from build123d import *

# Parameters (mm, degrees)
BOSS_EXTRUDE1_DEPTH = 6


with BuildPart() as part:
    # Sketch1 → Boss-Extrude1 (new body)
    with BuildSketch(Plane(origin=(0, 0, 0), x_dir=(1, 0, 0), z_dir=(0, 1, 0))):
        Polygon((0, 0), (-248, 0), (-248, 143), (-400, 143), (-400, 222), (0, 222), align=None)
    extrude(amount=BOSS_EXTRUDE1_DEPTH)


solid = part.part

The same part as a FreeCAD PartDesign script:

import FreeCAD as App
import Part
import Sketcher

doc = App.newDocument("Part")
body = doc.addObject("PartDesign::Body", "Body")

# Sketch on XZ plane
sketch1 = body.newObject("Sketcher::SketchObject", "Sketch")
sketch1.AttachmentSupport = (doc.getObject("XZ_Plane"), [""])
sketch1.MapMode = "FlatFace"
sketch1.addGeometry([
    Part.LineSegment(App.Vector(-248, 0, 0), App.Vector(0, 0, 0)),  # 0
    Part.LineSegment(App.Vector(0, 0, 0), App.Vector(0, -222, 0)),  # 1
    Part.LineSegment(App.Vector(0, -222, 0), App.Vector(-400, -222, 0)),  # 2
    Part.LineSegment(App.Vector(-400, -222, 0), App.Vector(-400, -143, 0)),  # 3
    Part.LineSegment(App.Vector(-400, -143, 0), App.Vector(-248, -143, 0)),  # 4
    Part.LineSegment(App.Vector(-248, -143, 0), App.Vector(-248, 0, 0)),  # 5
], False)
sketch1.addConstraint([
    Sketcher.Constraint("Coincident", 0, 2, 1, 1),
    Sketcher.Constraint("Coincident", 1, 2, 2, 1),
    Sketcher.Constraint("Coincident", 2, 2, 3, 1),
    Sketcher.Constraint("Coincident", 3, 2, 4, 1),
    Sketcher.Constraint("Coincident", 4, 2, 5, 1),
    Sketcher.Constraint("Coincident", 5, 2, 0, 1),
    Sketcher.Constraint("Horizontal", 0),
    Sketcher.Constraint("Vertical", 1),
    Sketcher.Constraint("Horizontal", 2),
    Sketcher.Constraint("Vertical", 3),
    Sketcher.Constraint("Horizontal", 4),
    Sketcher.Constraint("Vertical", 5),
    Sketcher.Constraint("Coincident", 0, 2, -1, 1),
    Sketcher.Constraint("DistanceX", 0, 1, 0, 2, 248.0),
    Sketcher.Constraint("DistanceX", 2, 2, 2, 1, 400.0),
    Sketcher.Constraint("DistanceY", 1, 2, 1, 1, 222.0),
    Sketcher.Constraint("DistanceY", 3, 1, 3, 2, 79.0),
])
pad1 = body.newObject("PartDesign::Pad", "Pad")
pad1.Profile = sketch1
pad1.Length = 6
pad1.Reversed = True

doc.recompute()
